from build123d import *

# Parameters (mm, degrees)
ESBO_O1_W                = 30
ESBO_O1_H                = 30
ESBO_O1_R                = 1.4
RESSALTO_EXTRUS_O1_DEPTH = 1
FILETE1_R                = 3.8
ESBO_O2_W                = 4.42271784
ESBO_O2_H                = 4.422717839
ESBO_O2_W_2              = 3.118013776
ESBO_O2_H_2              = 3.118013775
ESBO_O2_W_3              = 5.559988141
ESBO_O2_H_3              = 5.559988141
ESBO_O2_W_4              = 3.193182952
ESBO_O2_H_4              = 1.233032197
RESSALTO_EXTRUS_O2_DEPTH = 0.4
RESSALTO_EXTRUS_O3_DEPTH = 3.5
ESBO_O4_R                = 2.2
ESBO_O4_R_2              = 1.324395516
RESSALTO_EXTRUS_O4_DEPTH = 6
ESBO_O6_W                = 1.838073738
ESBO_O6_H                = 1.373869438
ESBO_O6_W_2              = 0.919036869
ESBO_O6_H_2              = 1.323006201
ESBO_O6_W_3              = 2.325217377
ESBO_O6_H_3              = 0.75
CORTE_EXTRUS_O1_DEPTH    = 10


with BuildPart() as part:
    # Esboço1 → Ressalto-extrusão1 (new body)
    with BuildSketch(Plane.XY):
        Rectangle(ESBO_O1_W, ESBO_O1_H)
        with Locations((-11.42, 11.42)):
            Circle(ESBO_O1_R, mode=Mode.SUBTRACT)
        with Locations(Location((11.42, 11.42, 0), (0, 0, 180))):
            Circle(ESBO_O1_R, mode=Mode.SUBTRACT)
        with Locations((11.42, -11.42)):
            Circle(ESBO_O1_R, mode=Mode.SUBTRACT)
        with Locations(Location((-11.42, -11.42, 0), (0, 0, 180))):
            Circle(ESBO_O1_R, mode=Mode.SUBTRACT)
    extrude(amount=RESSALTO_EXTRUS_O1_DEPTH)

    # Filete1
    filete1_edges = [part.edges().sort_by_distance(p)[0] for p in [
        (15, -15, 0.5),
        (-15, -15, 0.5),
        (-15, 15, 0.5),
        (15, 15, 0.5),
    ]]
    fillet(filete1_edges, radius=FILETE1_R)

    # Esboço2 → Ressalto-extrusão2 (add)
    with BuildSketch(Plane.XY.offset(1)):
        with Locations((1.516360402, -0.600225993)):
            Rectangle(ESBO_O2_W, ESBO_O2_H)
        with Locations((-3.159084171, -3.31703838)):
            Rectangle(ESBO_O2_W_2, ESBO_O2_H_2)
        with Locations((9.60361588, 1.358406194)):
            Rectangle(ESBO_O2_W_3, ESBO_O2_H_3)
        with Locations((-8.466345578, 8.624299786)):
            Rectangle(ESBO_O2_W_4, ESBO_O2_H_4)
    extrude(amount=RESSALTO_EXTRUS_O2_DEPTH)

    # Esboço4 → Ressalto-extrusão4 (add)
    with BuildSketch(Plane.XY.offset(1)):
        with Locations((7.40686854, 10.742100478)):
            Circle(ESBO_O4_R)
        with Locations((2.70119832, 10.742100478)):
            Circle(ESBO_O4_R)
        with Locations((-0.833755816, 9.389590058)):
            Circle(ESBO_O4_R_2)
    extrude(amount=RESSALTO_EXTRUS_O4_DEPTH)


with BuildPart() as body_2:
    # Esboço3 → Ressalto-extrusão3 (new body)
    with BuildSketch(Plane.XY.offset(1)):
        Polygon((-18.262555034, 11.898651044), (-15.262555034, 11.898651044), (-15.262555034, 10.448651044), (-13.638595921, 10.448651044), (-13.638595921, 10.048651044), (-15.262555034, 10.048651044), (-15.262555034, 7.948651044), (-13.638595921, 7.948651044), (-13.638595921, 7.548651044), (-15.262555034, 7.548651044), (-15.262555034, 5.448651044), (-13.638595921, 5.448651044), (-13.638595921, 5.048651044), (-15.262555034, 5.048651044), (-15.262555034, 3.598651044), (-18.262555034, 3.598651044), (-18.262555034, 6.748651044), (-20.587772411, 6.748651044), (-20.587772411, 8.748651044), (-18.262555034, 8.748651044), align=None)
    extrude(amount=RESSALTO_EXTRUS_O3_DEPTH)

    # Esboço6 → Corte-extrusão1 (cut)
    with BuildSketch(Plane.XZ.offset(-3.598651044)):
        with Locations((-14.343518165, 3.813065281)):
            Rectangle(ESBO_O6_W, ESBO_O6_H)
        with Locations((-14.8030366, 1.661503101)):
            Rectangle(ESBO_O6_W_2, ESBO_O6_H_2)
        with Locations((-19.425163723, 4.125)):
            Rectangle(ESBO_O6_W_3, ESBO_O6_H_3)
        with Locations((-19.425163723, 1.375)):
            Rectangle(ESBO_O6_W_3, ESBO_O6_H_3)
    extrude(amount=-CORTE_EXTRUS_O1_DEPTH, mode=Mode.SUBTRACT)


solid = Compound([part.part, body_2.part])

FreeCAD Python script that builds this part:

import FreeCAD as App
import Part
import Sketcher
Q = App.Units.Quantity


def edges_at(feature, points):
    """Names of the edges that pass closest to the given points."""
    edges = feature.Shape.Edges
    near = lambda p: min(range(len(edges)), key=lambda i: edges[i].distToShape(Part.Vertex(*p))[0])
    return sorted({f"Edge{near(p) + 1}" for p in points})


def add_polygon(sketch, points):
    """Adds a closed chain of lines whose ends are joined by coincident constraints."""
    first, n = sketch.GeometryCount, len(points)
    for a, b in zip(points, points[1:] + points[:1]):
        sketch.addGeometry(Part.LineSegment(App.Vector(*a, 0), App.Vector(*b, 0)), False)
    for i in range(n):
        sketch.addConstraint(Sketcher.Constraint("Coincident", first + i, 2, first + (i + 1) % n, 1))

doc = App.newDocument("Part")
body = doc.addObject("PartDesign::Body", "Body")

# Sketch on XY plane
sketch1 = body.newObject("Sketcher::SketchObject", "Sketch")
sketch1.AttachmentSupport = (doc.getObject("XY_Plane"), [""])
sketch1.MapMode = "FlatFace"
add_polygon(sketch1, [(-15, 15), (-15, -15), (15, -15), (15, 15)])  # lines 0-3
sketch1.addGeometry(Part.Circle(App.Vector(-11.4, -11.4, 0), App.Vector(0, 0, 1), 1.4), False)  # 4
sketch1.addGeometry(Part.Circle(App.Vector(11.4, -11.4, 0), App.Vector(0, 0, 1), 1.4), False)  # 5
sketch1.addGeometry(Part.Circle(App.Vector(-11.4, 11.4, 0), App.Vector(0, 0, 1), 1.4), False)  # 6
sketch1.addGeometry(Part.Circle(App.Vector(11.4, 11.4, 0), App.Vector(0, 0, 1), 1.4), False)  # 7
sketch1.addConstraint([
    Sketcher.Constraint("Vertical", 0),
    Sketcher.Constraint("Horizontal", 1),
    Sketcher.Constraint("Vertical", 2),
    Sketcher.Constraint("Horizontal", 3),
    Sketcher.Constraint("Equal", 4, 5),
    Sketcher.Constraint("Equal", 5, 6),
    Sketcher.Constraint("Equal", 6, 7),
    Sketcher.Constraint("Symmetric", 5, 3, 6, 3, -1, 1),
    Sketcher.Constraint("Symmetric", 4, 3, 7, 3, -1, 1),
    Sketcher.Constraint("Symmetric", 0, 2, 2, 2, -1, 1),
    Sketcher.Constraint("Symmetric", 4, 3, 5, 3, -2),
    Sketcher.Constraint("Equal", 3, 0),
    Sketcher.Constraint("Diameter", 4, Q("2.8 mm")),
    Sketcher.Constraint("DistanceX", 1, 1, 1, 2, Q("30 mm")),
    Sketcher.Constraint("DistanceX", 4, 3, -1, 1, Q("11.42 mm")),
    Sketcher.Constraint("DistanceY", 4, 3, -1, 1, Q("11.42 mm")),
])
pad1 = body.newObject("PartDesign::Pad", "Pad")
pad1.Profile = sketch1
pad1.Length = 1
doc.recompute()

fillet = body.newObject("PartDesign::Fillet", "Fillet")
fillet.Base = (pad1, edges_at(pad1, [
    (15, -15, 0.5),
    (-15, -15, 0.5),
    (-15, 15, 0.5),
    (15, 15, 0.5),
]))
fillet.Radius = 3.8

# Sketch on XY plane
sketch2 = body.newObject("Sketcher::SketchObject", "Sketch001")
sketch2.AttachmentSupport = (doc.getObject("XY_Plane"), [""])
sketch2.MapMode = "FlatFace"
sketch2.AttachmentOffset = App.Placement(App.Vector(0, 0, 1), App.Rotation())
add_polygon(sketch2, [(-0.7, 1.6), (-0.7, -2.8), (3.7, -2.8), (3.7, 1.6)])  # lines 0-3
add_polygon(sketch2, [(-4.7, -1.8), (-4.7, -4.9), (-1.6, -4.9), (-1.6, -1.8)])  # lines 4-7
add_polygon(sketch2, [(6.8, 4.1), (6.8, -1.4), (12.4, -1.4), (12.4, 4.1)])  # lines 8-11
add_polygon(sketch2, [(-10.1, 9.2), (-10.1, 8), (-6.9, 8), (-6.9, 9.2)])  # lines 12-15
sketch2.addConstraint([
    Sketcher.Constraint("Vertical", 0),
    Sketcher.Constraint("Horizontal", 1),
    Sketcher.Constraint("Vertical", 2),
    Sketcher.Constraint("Horizontal", 3),
    Sketcher.Constraint("Vertical", 4),
    Sketcher.Constraint("Horizontal", 5),
    Sketcher.Constraint("Vertical", 6),
    Sketcher.Constraint("Horizontal", 7),
    Sketcher.Constraint("Vertical", 8),
    Sketcher.Constraint("Horizontal", 9),
    Sketcher.Constraint("Vertical", 10),
    Sketcher.Constraint("Horizontal", 11),
    Sketcher.Constraint("Vertical", 12),
    Sketcher.Constraint("Horizontal", 13),
    Sketcher.Constraint("Vertical", 14),
    Sketcher.Constraint("Horizontal", 15),
    Sketcher.Constraint("Equal", 3, 0),
    Sketcher.Constraint("Equal", 7, 4),
    Sketcher.Constraint("Equal", 11, 8),
    Sketcher.Constraint("DistanceX", 0, 2, -1, 1, Q("0.694999 mm")),
    Sketcher.Constraint("DistanceX", 9, 1, 9, 2, Q("5.559988 mm")),
    Sketcher.Constraint("DistanceY", -1, 1, 10, 2, Q("4.1384 mm")),
    Sketcher.Constraint("DistanceX", 6, 2, 8, 2, Q("8.423699 mm")),
    Sketcher.Constraint("DistanceX", 1, 1, 1, 2, Q("4.422718 mm")),
    Sketcher.Constraint("DistanceX", 5, 1, 5, 2, Q("3.118014 mm")),
    Sketcher.Constraint("DistanceX", 13, 1, 13, 2, Q("3.193183 mm")),
    Sketcher.Constraint("DistanceY", 12, 2, 12, 1, Q("1.233032 mm")),
    Sketcher.Constraint("DistanceX", 4, 2, -1, 1, Q("4.718091 mm")),
    Sketcher.Constraint("DistanceY", 6, 2, -1, 1, Q("1.758031 mm")),
    Sketcher.Constraint("DistanceY", 4, 2, 0, 2, Q("2.06446 mm")),
    Sketcher.Constraint("DistanceX", 12, 2, 3, 2, Q("9.367939 mm")),
    Sketcher.Constraint("DistanceY", 3, 2, 12, 2, Q("6.396651 mm")),
])
pad2 = body.newObject("PartDesign::Pad", "Pad001")
pad2.Profile = sketch2
pad2.Length = 0.4

# Sketch on XY plane
sketch3 = body.newObject("Sketcher::SketchObject", "Sketch002")
sketch3.AttachmentSupport = (doc.getObject("XY_Plane"), [""])
sketch3.MapMode = "FlatFace"
sketch3.AttachmentOffset = App.Placement(App.Vector(0, 0, 1), App.Rotation())
sketch3.addGeometry([
    Part.Circle(App.Vector(7.4, 10.7, 0), App.Vector(0, 0, 1), 2.2),
    Part.Circle(App.Vector(2.7, 10.7, 0), App.Vector(0, 0, 1), 2.2),
    Part.Circle(App.Vector(-0.8, 9.4, 0), App.Vector(0, 0, 1), 1.3),
], False)
sketch3.addConstraint([
    Sketcher.Constraint("Equal", 0, 1),
    Sketcher.Constraint("Horizontal", 0, 3, 1, 3),
    Sketcher.Constraint("Diameter", 0, Q("4.4 mm")),
    Sketcher.Constraint("Diameter", 2, Q("2.648791 mm")),
    Sketcher.Constraint("DistanceY", -1, 1, 0, 3, Q("10.7421 mm")),
    Sketcher.Constraint("DistanceX", -1, 1, 1, 3, Q("2.701198 mm")),
    Sketcher.Constraint("DistanceX", -1, 1, 0, 3, Q("7.406869 mm")),
    Sketcher.Constraint("DistanceY", -1, 1, 2, 3, Q("9.38959 mm")),
    Sketcher.Constraint("DistanceX", 2, 3, -1, 1, Q("0.833756 mm")),
])
pad3 = body.newObject("PartDesign::Pad", "Pad002")
pad3.Profile = sketch3
pad3.Length = 6
body2 = doc.addObject("PartDesign::Body", "Body001")

# Sketch on XY plane
sketch4 = body2.newObject("Sketcher::SketchObject", "Sketch003")
sketch4.AttachmentSupport = (doc.getObject("XY_Plane001"), [""])
sketch4.MapMode = "FlatFace"
sketch4.AttachmentOffset = App.Placement(App.Vector(0, 0, 1), App.Rotation())
add_polygon(sketch4, [(-15.26, 11.9), (-18.26, 11.9), (-18.26, 8.75), (-20.59, 8.75), (-20.59, 6.75), (-18.26, 6.75), (-18.26, 3.6), (-15.26, 3.6), (-15.26, 5.05), (-13.64, 5.05), (-13.64, 5.45), (-15.26, 5.45), (-15.26, 7.55), (-13.64, 7.55), (-13.64, 7.95), (-15.26, 7.95), (-15.26, 10.05), (-13.64, 10.05), (-13.64, 10.45), (-15.26, 10.45)])  # lines 0-19
sketch4.addConstraint([
    Sketcher.Constraint("Horizontal", 0),
    Sketcher.Constraint("Vertical", 1),
    Sketcher.Constraint("Horizontal", 2),
    Sketcher.Constraint("Vertical", 3),
    Sketcher.Constraint("Horizontal", 4),
    Sketcher.Constraint("Vertical", 5),
    Sketcher.Constraint("Horizontal", 6),
    Sketcher.Constraint("Vertical", 7),
    Sketcher.Constraint("Horizontal", 8),
    Sketcher.Constraint("Vertical", 9),
    Sketcher.Constraint("Horizontal", 10),
    Sketcher.Constraint("Vertical", 11),
    Sketcher.Constraint("Horizontal", 12),
    Sketcher.Constraint("Vertical", 13),
    Sketcher.Constraint("Horizontal", 14),
    Sketcher.Constraint("Vertical", 15),
    Sketcher.Constraint("Horizontal", 16),
    Sketcher.Constraint("Vertical", 17),
    Sketcher.Constraint("Horizontal", 18),
    Sketcher.Constraint("Vertical", 19),
    Sketcher.Constraint("Vertical", 1, 2, 4, 2),
    Sketcher.Constraint("Vertical", 7, 2, 10, 2),
    Sketcher.Constraint("Vertical", 9, 2, 12, 2),
    Sketcher.Constraint("Vertical", 11, 2, 14, 2),
    Sketcher.Constraint("Vertical", 13, 2, 16, 2),
    Sketcher.Constraint("Vertical", 15, 2, 18, 2),
    Sketcher.Constraint("Equal", 1, 5),
    Sketcher.Constraint("Equal", 9, 13),
    Sketcher.Constraint("Equal", 11, 15),
    Sketcher.Constraint("Equal", 13, 17),
    Sketcher.Constraint("Equal", 7, 19),
    Sketcher.Constraint("DistanceX", 0, 2, 0, 1, Q("3 mm")),
    Sketcher.Constraint("DistanceY", 3, 2, 3, 1, Q("2 mm")),
    Sketcher.Constraint("DistanceY", 9, 1, 9, 2, Q("0.4 mm")),
    Sketcher.Constraint("DistanceY", 11, 1, 11, 2, Q("2.1 mm")),
    Sketcher.Constraint("DistanceY", 1, 2, 1, 1, Q("3.15 mm")),
    Sketcher.Constraint("DistanceX", 8, 1, 8, 2, Q("1.623959 mm")),
    Sketcher.Constraint("DistanceX", 2, 2, 2, 1, Q("2.325217 mm")),
    Sketcher.Constraint("DistanceY", -1, 1, 0, 2, Q("11.898651 mm")),
    Sketcher.Constraint("DistanceX", 0, 2, -1, 1, Q("18.262555 mm")),
])
pad4 = body2.newObject("PartDesign::Pad", "Pad003")
pad4.Profile = sketch4
pad4.Length = 3.5

# Sketch on XZ plane
sketch5 = body2.newObject("Sketcher::SketchObject", "Sketch004")
sketch5.AttachmentSupport = (doc.getObject("XZ_Plane001"), [""])
sketch5.MapMode = "FlatFace"
sketch5.AttachmentOffset = App.Placement(App.Vector(0, 0, -3.598651), App.Rotation())
add_polygon(sketch5, [(-15.3, 4.5), (-15.3, 3.1), (-13.4, 3.1), (-13.4, 4.5)])  # lines 0-3
add_polygon(sketch5, [(-15.3, 2.3), (-15.3, 1), (-14.3, 1), (-14.3, 2.3)])  # lines 4-7
add_polygon(sketch5, [(-20.6, 4.5), (-20.6, 3.8), (-18.3, 3.8), (-18.3, 4.5)])  # lines 8-11
add_polygon(sketch5, [(-20.6, 1.8), (-20.6, 1), (-18.3, 1), (-18.3, 1.8)])  # lines 12-15
sketch5.addConstraint([
    Sketcher.Constraint("Vertical", 0),
    Sketcher.Constraint("Horizontal", 1),
    Sketcher.Constraint("Vertical", 2),
    Sketcher.Constraint("Horizontal", 3),
    Sketcher.Constraint("Vertical", 4),
    Sketcher.Constraint("Horizontal", 5),
    Sketcher.Constraint("Vertical", 6),
    Sketcher.Constraint("Horizontal", 7),
    Sketcher.Constraint("Vertical", 8),
    Sketcher.Constraint("Horizontal", 9),
    Sketcher.Constraint("Vertical", 10),
    Sketcher.Constraint("Horizontal", 11),
    Sketcher.Constraint("Vertical", 12),
    Sketcher.Constraint("Horizontal", 13),
    Sketcher.Constraint("Vertical", 14),
    Sketcher.Constraint("Horizontal", 15),
    Sketcher.Constraint("Horizontal", 3, 2, 10, 2),
    Sketcher.Constraint("Horizontal", 5, 2, 12, 2),
    Sketcher.Constraint("Vertical", 3, 2, 4, 2),
    Sketcher.Constraint("Vertical", 11, 2, 12, 2),
    Sketcher.Constraint("Vertical", 10, 2, 13, 2),
    Sketcher.Constraint("Equal", 10, 12),
    Sketcher.Constraint("DistanceY", -1, 1, 4, 2, Q("1 mm")),
    Sketcher.Constraint("DistanceX", 9, 2, 0, 2, Q("3 mm")),
    Sketcher.Constraint("DistanceY", 14, 2, 9, 2, Q("2 mm")),
    Sketcher.Constraint("DistanceY", 8, 2, 8, 1, Q("0.75 mm")),
    Sketcher.Constraint("DistanceY", 0, 2, 0, 1, Q("1.373869 mm")),
    Sketcher.Constraint("DistanceX", 1, 1, 1, 2, Q("1.838074 mm")),
    Sketcher.Constraint("DistanceX", 5, 1, 5, 2, Q("0.919037 mm")),
    Sketcher.Constraint("DistanceX", 9, 1, 9, 2, Q("2.325217 mm")),
    Sketcher.Constraint("DistanceY", 4, 2, 4, 1, Q("1.323006 mm")),
    Sketcher.Constraint("DistanceX", 1, 2, -1, 1, Q("13.424481 mm")),
])
pocket1 = body2.newObject("PartDesign::Pocket", "Pocket")
pocket1.Profile = sketch5
pocket1.Length = 10

doc.recompute()
